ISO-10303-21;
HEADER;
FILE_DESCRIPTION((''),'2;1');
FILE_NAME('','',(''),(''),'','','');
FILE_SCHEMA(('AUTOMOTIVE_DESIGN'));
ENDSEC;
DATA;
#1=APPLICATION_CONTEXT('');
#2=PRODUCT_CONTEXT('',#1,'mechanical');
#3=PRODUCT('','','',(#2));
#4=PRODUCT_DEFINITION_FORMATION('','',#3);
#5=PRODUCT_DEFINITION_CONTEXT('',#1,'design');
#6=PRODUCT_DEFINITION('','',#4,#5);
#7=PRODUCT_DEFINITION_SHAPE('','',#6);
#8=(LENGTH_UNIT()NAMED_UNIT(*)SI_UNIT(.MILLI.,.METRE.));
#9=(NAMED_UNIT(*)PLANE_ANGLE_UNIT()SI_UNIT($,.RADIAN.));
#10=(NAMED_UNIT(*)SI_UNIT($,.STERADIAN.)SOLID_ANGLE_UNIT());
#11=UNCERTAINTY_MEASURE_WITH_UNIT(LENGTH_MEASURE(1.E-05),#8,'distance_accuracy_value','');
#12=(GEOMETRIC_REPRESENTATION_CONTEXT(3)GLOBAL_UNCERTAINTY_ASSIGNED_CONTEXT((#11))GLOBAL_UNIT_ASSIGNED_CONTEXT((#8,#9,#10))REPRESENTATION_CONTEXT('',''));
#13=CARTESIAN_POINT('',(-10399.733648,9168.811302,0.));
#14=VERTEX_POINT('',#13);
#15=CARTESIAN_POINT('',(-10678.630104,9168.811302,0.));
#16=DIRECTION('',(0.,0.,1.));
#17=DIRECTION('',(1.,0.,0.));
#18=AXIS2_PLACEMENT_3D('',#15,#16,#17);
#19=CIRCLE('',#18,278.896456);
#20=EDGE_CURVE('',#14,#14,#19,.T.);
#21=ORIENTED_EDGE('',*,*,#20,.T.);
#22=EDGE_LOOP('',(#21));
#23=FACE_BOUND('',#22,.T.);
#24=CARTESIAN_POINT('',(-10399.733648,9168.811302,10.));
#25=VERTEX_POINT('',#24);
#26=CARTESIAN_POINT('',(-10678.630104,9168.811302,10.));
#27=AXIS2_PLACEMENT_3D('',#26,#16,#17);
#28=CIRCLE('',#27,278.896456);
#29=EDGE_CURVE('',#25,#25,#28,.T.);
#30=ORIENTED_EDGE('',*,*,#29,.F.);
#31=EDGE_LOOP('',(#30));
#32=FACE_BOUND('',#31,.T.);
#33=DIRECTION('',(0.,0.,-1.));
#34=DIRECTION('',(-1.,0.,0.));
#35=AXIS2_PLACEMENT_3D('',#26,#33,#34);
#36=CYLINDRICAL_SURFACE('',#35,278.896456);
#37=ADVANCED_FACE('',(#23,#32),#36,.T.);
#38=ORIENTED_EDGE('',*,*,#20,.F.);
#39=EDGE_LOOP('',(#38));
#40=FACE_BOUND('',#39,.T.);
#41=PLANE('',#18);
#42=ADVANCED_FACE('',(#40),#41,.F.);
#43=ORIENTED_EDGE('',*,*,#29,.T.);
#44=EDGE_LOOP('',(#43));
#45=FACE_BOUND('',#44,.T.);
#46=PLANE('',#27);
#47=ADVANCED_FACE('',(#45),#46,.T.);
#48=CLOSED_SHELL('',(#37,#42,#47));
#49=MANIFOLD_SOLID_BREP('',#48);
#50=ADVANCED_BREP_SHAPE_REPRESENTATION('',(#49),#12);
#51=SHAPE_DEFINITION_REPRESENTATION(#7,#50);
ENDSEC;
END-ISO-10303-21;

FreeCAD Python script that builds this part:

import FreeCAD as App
import Part
import Sketcher
Q = App.Units.Quantity

doc = App.newDocument("Part")
body = doc.addObject("PartDesign::Body", "Body")

# Sketch on XY plane
sketch1 = doc.addObject("Sketcher::SketchObject", "Sketch")
body.addObject(sketch1)
sketch1.AttachmentSupport = (doc.XY_Plane, [""])
sketch1.MapMode = "FlatFace"
sketch1.addGeometry(Part.Circle(App.Vector(-10679, 9169, 0), App.Vector(0, 0, 1), 279), False)
sketch1.addConstraint([
    Sketcher.Constraint("Diameter", 0, Q("557.792913 mm")),
    Sketcher.Constraint("DistanceY", -1, 1, 0, 3, Q("9168.811302 mm")),
    Sketcher.Constraint("DistanceX", 0, 3, -1, 1, Q("10678.630104 mm")),
])
pad1 = doc.addObject("PartDesign::Pad", "Pad")
body.addObject(pad1)
pad1.Profile = sketch1
pad1.Length = 10

doc.recompute()
